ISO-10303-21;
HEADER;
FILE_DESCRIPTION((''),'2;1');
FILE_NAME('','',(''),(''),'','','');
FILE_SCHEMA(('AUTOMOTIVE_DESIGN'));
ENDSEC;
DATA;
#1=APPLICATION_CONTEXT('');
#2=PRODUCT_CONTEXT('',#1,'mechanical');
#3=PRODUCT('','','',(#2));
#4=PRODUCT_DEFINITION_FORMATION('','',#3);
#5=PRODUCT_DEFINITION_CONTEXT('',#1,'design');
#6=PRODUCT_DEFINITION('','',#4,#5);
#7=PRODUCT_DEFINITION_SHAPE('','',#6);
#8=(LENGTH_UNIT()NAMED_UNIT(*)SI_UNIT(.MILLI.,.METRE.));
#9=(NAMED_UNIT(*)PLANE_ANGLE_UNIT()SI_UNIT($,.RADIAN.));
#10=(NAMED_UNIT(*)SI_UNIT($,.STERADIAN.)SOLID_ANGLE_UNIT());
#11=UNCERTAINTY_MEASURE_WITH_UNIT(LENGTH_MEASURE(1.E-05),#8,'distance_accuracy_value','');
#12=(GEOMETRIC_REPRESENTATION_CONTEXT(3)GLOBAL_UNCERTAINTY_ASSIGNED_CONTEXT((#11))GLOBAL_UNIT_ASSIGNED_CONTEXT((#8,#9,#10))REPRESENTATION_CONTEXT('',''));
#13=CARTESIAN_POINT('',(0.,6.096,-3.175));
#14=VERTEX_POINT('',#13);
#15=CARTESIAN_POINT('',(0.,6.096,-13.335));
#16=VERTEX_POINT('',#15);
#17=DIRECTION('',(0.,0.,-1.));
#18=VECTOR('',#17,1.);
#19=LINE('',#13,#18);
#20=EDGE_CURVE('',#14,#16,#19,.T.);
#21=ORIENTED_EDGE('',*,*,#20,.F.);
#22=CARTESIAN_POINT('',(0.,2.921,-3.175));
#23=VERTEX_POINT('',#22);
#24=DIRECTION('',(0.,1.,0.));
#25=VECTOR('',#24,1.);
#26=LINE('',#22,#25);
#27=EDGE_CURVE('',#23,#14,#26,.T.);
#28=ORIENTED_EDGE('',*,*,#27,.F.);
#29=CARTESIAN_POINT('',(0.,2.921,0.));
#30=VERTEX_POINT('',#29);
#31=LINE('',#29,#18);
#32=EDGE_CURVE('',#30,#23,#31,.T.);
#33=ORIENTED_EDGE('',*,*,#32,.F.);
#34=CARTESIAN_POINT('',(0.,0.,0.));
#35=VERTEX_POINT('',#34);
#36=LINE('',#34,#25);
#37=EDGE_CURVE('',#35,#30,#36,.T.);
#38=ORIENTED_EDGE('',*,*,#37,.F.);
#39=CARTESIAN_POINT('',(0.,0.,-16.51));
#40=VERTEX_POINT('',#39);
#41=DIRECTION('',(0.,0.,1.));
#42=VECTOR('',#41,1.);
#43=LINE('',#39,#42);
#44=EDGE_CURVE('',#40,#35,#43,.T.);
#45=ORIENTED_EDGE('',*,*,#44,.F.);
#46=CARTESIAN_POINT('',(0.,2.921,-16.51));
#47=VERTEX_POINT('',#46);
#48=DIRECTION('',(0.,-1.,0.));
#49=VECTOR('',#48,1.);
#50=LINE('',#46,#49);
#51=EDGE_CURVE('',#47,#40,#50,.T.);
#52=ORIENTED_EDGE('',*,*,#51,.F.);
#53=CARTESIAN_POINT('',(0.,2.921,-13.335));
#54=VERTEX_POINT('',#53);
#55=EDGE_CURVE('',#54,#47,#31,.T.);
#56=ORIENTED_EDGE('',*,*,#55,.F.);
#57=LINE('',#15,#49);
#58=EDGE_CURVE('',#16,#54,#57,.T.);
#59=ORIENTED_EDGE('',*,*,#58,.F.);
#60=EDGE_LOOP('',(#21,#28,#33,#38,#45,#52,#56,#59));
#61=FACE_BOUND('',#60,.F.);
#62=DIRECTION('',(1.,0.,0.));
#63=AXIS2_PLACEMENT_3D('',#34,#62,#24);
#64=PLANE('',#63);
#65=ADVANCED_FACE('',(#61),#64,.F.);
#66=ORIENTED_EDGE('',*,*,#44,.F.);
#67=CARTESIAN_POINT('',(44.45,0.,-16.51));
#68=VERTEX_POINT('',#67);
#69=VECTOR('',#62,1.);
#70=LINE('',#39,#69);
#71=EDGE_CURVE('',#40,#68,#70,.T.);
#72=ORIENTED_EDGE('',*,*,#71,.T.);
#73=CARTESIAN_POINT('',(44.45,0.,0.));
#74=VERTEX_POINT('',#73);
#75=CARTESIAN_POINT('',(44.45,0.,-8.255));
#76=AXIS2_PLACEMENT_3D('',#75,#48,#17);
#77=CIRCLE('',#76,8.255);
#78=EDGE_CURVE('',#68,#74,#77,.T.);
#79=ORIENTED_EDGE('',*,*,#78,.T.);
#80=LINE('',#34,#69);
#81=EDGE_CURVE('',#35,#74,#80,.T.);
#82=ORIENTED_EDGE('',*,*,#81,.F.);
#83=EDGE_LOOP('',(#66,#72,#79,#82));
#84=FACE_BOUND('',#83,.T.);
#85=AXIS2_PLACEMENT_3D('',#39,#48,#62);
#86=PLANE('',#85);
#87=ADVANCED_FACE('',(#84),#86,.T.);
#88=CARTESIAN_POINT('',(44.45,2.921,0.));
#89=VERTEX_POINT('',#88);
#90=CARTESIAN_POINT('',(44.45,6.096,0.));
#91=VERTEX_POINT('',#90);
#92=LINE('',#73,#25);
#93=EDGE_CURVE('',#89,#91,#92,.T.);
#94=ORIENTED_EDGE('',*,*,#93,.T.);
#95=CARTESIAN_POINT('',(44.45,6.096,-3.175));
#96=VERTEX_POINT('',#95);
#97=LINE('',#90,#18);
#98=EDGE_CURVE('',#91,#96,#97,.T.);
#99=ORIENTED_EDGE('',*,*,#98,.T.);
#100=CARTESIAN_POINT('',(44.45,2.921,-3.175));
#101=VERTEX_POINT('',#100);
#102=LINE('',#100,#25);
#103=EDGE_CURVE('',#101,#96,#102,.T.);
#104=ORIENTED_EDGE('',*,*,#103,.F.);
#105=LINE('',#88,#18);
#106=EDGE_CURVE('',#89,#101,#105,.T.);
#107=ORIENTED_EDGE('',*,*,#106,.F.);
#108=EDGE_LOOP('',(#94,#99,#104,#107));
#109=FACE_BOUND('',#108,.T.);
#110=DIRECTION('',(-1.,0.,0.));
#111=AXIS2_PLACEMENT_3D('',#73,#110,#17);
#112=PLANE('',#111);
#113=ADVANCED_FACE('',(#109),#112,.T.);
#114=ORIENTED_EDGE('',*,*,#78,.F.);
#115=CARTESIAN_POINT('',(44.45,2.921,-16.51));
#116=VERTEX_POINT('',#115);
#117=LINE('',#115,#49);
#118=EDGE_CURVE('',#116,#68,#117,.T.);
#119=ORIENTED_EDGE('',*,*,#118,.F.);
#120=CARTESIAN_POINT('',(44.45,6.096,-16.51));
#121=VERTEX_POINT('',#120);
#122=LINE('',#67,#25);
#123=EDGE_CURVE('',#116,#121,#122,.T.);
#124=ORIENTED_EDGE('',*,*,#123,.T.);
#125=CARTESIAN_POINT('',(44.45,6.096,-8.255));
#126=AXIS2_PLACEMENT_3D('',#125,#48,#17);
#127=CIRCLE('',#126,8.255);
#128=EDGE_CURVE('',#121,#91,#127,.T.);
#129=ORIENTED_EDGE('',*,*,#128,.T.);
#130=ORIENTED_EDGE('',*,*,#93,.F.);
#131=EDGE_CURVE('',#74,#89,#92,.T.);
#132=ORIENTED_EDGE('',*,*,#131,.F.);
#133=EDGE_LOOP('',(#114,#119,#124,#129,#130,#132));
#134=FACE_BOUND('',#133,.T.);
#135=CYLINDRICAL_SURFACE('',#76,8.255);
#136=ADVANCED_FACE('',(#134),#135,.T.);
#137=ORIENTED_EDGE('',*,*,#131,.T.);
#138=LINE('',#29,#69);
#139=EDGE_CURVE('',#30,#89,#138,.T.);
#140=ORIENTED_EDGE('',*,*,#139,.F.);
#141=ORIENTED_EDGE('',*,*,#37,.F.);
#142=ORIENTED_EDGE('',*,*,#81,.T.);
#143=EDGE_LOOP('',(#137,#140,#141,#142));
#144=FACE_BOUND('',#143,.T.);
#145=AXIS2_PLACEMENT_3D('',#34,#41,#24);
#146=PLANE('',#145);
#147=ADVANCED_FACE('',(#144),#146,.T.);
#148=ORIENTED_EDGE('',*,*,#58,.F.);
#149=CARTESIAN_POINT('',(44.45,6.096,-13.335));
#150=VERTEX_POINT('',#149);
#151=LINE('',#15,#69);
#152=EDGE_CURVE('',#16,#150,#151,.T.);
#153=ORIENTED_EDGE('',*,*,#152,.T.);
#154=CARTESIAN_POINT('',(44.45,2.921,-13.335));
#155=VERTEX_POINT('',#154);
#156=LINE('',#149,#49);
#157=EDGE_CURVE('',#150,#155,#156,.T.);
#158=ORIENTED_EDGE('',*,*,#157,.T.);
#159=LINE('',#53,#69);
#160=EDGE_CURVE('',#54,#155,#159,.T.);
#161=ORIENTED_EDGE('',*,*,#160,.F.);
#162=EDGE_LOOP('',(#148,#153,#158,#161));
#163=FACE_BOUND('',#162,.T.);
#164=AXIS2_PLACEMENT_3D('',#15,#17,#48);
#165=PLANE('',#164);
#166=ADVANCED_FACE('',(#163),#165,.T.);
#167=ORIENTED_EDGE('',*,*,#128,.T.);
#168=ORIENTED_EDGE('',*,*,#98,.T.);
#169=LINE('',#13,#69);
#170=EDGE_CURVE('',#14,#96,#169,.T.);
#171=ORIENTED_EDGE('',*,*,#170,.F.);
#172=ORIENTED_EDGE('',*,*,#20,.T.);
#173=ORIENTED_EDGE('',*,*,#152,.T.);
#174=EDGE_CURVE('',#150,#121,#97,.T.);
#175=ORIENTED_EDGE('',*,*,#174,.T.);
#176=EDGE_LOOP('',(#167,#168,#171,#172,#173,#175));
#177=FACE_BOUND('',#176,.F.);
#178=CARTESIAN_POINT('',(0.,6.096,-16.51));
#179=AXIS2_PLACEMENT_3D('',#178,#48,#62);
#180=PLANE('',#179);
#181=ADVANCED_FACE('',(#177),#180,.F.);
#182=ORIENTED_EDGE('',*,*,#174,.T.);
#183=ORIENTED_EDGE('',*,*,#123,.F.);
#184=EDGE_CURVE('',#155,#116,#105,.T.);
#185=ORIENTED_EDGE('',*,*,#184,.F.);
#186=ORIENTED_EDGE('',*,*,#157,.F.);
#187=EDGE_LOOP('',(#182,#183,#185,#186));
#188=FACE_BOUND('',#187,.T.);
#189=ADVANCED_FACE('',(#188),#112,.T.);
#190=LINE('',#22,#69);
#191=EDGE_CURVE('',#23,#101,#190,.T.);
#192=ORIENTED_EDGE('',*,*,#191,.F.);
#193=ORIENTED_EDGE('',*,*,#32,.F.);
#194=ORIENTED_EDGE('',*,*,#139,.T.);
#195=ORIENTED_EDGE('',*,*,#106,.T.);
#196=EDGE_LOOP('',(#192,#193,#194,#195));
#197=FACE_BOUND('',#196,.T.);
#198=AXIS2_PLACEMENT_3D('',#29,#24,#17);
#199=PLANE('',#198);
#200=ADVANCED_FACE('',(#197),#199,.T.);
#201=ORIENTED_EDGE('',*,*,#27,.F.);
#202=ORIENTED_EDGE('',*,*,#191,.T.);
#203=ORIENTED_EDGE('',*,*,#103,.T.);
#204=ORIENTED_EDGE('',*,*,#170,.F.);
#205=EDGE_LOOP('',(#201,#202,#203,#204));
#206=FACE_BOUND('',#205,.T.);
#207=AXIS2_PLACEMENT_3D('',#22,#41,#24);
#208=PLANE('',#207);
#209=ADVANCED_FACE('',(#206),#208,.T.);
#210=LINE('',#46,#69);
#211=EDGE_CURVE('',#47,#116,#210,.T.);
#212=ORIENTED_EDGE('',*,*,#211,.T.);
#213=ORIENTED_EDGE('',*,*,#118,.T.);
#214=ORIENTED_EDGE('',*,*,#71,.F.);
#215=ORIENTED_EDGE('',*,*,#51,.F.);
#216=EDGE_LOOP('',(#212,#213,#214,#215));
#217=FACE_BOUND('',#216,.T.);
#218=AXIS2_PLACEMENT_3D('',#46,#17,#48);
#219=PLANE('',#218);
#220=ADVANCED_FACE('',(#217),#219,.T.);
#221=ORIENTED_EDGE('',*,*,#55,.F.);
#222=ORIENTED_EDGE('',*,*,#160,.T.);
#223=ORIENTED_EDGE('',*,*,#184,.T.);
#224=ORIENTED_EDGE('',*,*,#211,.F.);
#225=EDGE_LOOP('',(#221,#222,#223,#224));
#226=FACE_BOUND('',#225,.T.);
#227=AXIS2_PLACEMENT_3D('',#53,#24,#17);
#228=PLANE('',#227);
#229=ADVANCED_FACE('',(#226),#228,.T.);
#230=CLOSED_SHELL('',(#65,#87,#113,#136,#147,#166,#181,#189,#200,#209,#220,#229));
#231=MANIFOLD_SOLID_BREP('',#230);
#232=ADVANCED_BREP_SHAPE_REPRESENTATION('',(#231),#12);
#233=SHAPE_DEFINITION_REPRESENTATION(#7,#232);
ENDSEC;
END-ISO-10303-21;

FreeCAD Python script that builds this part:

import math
import FreeCAD as App
import Part
import Sketcher
from FreeCAD import Vector
Q = App.Units.Quantity


def add_polygon(sketch, points):
    """Adds a closed chain of lines whose ends are joined by coincident constraints."""
    first, n = sketch.GeometryCount, len(points)
    for a, b in zip(points, points[1:] + points[:1]):
        sketch.addGeometry(Part.LineSegment(App.Vector(*a, 0), App.Vector(*b, 0)), False)
    for i in range(n):
        sketch.addConstraint(Sketcher.Constraint("Coincident", first + i, 2, first + (i + 1) % n, 1))

doc = App.newDocument("Part")
body = doc.addObject("PartDesign::Body", "Body")

# Sketch on YZ plane
sketch1 = body.newObject("Sketcher::SketchObject", "Sketch")
sketch1.AttachmentSupport = (doc.getObject("YZ_Plane"), [""])
sketch1.MapMode = "FlatFace"
add_polygon(sketch1, [(2.9, 0), (0, 0), (0, -16.5), (2.9, -16.5), (2.9, -13.3), (6.1, -13.3), (6.1, -3.2), (2.9, -3.2)])  # lines 0-7
sketch1.addConstraint([
    Sketcher.Constraint("Horizontal", 0),
    Sketcher.Constraint("Vertical", 1),
    Sketcher.Constraint("Horizontal", 2),
    Sketcher.Constraint("Vertical", 3),
    Sketcher.Constraint("Horizontal", 4),
    Sketcher.Constraint("Vertical", 5),
    Sketcher.Constraint("Horizontal", 6),
    Sketcher.Constraint("Vertical", 7),
    Sketcher.Constraint("Coincident", 0, 2, -1, 1),
    Sketcher.Constraint("Vertical", 3, 2, 6, 2),
    Sketcher.Constraint("Equal", 6, 3),
    Sketcher.Constraint("Equal", 3, 7),
    Sketcher.Constraint("DistanceY", 5, 1, 5, 2, Q("0.4 in")),
    Sketcher.Constraint("DistanceY", 1, 2, 1, 1, Q("0.65 in")),
    Sketcher.Constraint("DistanceX", 0, 2, 0, 1, Q("0.115 in")),
])
pad1 = body.newObject("PartDesign::Pad", "Pad")
pad1.Profile = sketch1
pad1.Length = Q("1.75 in")

# Sketch on XZ plane
sketch2 = body.newObject("Sketcher::SketchObject", "Sketch001")
sketch2.AttachmentSupport = (doc.getObject("XZ_Plane"), [""])
sketch2.MapMode = "FlatFace"
sketch2.addGeometry([
    Part.ArcOfCircle(Part.Circle(Vector(44, -8, 0), Vector(0, 0, 1), 8), math.radians(-90), math.radians(90)),
    Part.LineSegment(Vector(44, 0, 0), Vector(44, -17, 0)),
], False)
sketch2.addConstraint([
    Sketcher.Constraint("Coincident", 0, 1, 1, 2),
    Sketcher.Constraint("Coincident", 1, 1, 0, 2),
    Sketcher.Constraint("Vertical", 1),
    Sketcher.Constraint("PointOnObject", 1, 1, -1),
    Sketcher.Constraint("Radius", 0, Q("0.325 in")),
    Sketcher.Constraint("DistanceX", -1, 1, 0, 3, Q("1.75 in")),
    Sketcher.Constraint("DistanceX", -1, 1, 0, 1, Q("1.75 in")),
])
pad2 = body.newObject("PartDesign::Pad", "Pad001")
pad2.Profile = sketch2
pad2.Length = Q("0.24 in")
pad2.Reversed = True

doc.recompute()
